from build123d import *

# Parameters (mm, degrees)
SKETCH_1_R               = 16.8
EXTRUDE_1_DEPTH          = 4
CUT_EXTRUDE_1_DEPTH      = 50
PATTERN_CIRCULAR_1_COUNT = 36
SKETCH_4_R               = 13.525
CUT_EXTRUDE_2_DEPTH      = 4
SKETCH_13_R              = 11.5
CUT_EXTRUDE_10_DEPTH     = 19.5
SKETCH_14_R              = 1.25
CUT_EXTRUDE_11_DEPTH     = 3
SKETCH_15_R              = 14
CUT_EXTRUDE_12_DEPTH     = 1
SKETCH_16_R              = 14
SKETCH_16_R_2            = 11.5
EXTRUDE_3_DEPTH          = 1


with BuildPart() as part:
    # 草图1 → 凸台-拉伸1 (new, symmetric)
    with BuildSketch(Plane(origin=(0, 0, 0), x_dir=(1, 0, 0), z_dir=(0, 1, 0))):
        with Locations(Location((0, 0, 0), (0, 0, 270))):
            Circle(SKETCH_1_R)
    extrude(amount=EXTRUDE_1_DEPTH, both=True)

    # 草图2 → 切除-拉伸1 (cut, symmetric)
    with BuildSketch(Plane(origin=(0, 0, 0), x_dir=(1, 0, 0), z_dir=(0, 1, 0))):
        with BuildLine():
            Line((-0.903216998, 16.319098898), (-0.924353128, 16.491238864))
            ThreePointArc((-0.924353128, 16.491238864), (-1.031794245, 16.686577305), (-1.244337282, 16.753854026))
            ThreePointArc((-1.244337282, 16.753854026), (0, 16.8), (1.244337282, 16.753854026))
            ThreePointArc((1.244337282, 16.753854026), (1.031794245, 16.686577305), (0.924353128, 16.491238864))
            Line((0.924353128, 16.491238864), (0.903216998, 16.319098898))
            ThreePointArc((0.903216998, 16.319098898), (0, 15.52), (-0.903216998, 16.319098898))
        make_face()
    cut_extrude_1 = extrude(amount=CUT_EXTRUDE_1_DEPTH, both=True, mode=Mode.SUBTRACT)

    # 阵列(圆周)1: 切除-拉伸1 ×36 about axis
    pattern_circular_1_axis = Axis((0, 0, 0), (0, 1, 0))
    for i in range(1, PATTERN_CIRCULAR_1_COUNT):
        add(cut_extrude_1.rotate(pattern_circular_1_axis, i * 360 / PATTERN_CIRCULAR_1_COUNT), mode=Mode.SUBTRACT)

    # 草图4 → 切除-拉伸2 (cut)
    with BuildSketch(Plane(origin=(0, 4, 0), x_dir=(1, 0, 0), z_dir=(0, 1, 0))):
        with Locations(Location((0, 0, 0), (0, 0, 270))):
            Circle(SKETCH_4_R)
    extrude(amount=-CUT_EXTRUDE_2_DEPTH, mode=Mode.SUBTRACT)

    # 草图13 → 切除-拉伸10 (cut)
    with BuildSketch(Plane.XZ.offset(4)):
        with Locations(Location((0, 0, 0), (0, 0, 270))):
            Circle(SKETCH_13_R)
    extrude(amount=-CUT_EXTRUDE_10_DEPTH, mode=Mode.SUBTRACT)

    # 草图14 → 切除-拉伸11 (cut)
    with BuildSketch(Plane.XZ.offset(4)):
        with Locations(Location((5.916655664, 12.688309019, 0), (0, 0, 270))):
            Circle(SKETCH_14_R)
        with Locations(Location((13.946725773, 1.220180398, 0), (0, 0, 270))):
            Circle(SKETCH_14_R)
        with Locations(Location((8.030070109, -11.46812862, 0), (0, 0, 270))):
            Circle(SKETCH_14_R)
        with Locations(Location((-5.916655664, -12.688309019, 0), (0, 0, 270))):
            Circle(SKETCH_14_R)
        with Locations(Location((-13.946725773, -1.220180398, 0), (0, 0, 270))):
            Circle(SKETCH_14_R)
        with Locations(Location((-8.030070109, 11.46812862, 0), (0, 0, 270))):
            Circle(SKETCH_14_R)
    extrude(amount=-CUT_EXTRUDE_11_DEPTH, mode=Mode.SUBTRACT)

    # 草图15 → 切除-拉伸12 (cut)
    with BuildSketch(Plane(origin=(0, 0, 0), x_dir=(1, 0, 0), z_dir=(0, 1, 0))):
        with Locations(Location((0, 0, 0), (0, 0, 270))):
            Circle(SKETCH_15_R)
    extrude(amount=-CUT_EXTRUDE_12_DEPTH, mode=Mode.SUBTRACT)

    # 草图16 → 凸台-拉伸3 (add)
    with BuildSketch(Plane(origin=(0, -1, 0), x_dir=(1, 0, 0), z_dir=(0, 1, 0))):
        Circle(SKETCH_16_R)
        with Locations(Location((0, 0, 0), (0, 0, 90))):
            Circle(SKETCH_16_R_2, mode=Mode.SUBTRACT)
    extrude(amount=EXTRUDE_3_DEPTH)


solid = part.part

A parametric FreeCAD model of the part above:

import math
import FreeCAD as App
import Part
import Sketcher
Q = App.Units.Quantity

doc = App.newDocument("Part")
body = doc.addObject("PartDesign::Body", "Body")

sketch1 = body.newObject("Sketcher::SketchObject", "Sketch")
sketch1.AttachmentSupport = (doc.getObject("XZ_Plane"), [""])
sketch1.MapMode = "FlatFace"
sketch1.addGeometry(Part.Circle(App.Vector(0, 0, 0), App.Vector(0, 0, 1), 17), False)
sketch1.addConstraint([
    Sketcher.Constraint("Coincident", 0, 3, -1, 1),
    Sketcher.Constraint("Diameter", 0, Q("33.6 mm")),
])
pad1 = body.newObject("PartDesign::Pad", "Pad")
pad1.Profile = sketch1
pad1.Length = 8
pad1.Midplane = True

sketch2 = body.newObject("Sketcher::SketchObject", "Sketch001")
sketch2.AttachmentSupport = (doc.getObject("XZ_Plane"), [""])
sketch2.MapMode = "FlatFace"
sketch2.addGeometry([
    Part.LineSegment(App.Vector(-0.92, -16.49, 0), App.Vector(-0.9, -16.32, 0)),
    Part.ArcOfCircle(Part.Circle(App.Vector(0, -16.43, 0), App.Vector(0, 0, 1), 0.91), math.radians(7), math.radians(173)),
    Part.LineSegment(App.Vector(0.9, -16.32, 0), App.Vector(0.92, -16.49, 0)),
    Part.ArcOfCircle(Part.Circle(App.Vector(1.22, -16.45, 0), App.Vector(0, 0, 1), 0.3), math.radians(-173), math.radians(-86)),
    Part.ArcOfCircle(Part.Circle(App.Vector(0, 0, 0), App.Vector(0, 0, 1), 16.8), math.radians(-94.25), math.radians(-85.75)),
    Part.ArcOfCircle(Part.Circle(App.Vector(-1.22, -16.45, 0), App.Vector(0, 0, 1), 0.3), math.radians(-94), math.radians(-7)),
], False)
sketch2.addConstraint([
    Sketcher.Constraint("Tangent", 0, 2, 1, 2),
    Sketcher.Constraint("Tangent", 1, 1, 2, 1),
    Sketcher.Constraint("Tangent", 2, 2, 3, 1),
    Sketcher.Constraint("Tangent", 3, 2, 4, 2),
    Sketcher.Constraint("Tangent", 4, 1, 5, 1),
    Sketcher.Constraint("Tangent", 5, 2, 0, 1),
    Sketcher.Constraint("Coincident", 4, 3, -1, 1),
    Sketcher.Constraint("Equal", 3, 5),
    Sketcher.Constraint("Symmetric", 0, 2, 1, 1, -2),
    Sketcher.Constraint("Radius", 3, Q("0.3 mm")),
    Sketcher.Constraint("Radius", 4, Q("16.8 mm")),
    Sketcher.Constraint("Angle", 0, Q("83 deg")),
    Sketcher.Constraint("Radius", 1, Q("0.91 mm")),
    Sketcher.Constraint("DistanceY", 1, 3, -1, 1, Q("16.43 mm")),
])
pocket1 = body.newObject("PartDesign::Pocket", "Pocket")
pocket1.Profile = sketch2
pocket1.Length = 100
pocket1.Midplane = True
doc.recompute()

polarpattern = body.newObject("PartDesign::PolarPattern", "PolarPattern")
polarpattern.Originals = [pocket1]
polarpattern.Axis = (doc.getObject("Y_Axis"), [""])
polarpattern.Angle = 360
polarpattern.Occurrences = 36
body.Tip = polarpattern

sketch3 = body.newObject("Sketcher::SketchObject", "Sketch002")
sketch3.AttachmentSupport = (doc.getObject("XZ_Plane"), [""])
sketch3.MapMode = "FlatFace"
sketch3.AttachmentOffset = App.Placement(App.Vector(0, 0, -4), App.Rotation())
sketch3.addGeometry(Part.Circle(App.Vector(0, 0, 0), App.Vector(0, 0, 1), 14), False)
sketch3.addConstraint([
    Sketcher.Constraint("Coincident", 0, 3, -1, 1),
    Sketcher.Constraint("Diameter", 0, Q("27.05 mm")),
])
pocket2 = body.newObject("PartDesign::Pocket", "Pocket001")
pocket2.Profile = sketch3
pocket2.Length = 4
pocket2.Reversed = True

sketch4 = body.newObject("Sketcher::SketchObject", "Sketch003")
sketch4.AttachmentSupport = (doc.getObject("XZ_Plane"), [""])
sketch4.MapMode = "FlatFace"
sketch4.AttachmentOffset = App.Placement(App.Vector(0, 0, 4), App.Rotation())
sketch4.addGeometry(Part.Circle(App.Vector(0, 0, 0), App.Vector(0, 0, 1), 12), False)
sketch4.addConstraint([
    Sketcher.Constraint("Coincident", 0, 3, -1, 1),
    Sketcher.Constraint("Diameter", 0, Q("23 mm")),
])
pocket3 = body.newObject("PartDesign::Pocket", "Pocket002")
pocket3.Profile = sketch4
pocket3.Length = 19.5

sketch5 = body.newObject("Sketcher::SketchObject", "Sketch004")
sketch5.AttachmentSupport = (doc.getObject("XZ_Plane"), [""])
sketch5.MapMode = "FlatFace"
sketch5.AttachmentOffset = App.Placement(App.Vector(0, 0, 4), App.Rotation())
sketch5.addGeometry([
    Part.Circle(App.Vector(5.9, 12.7, 0), App.Vector(0, 0, 1), 1.2),
    Part.Circle(App.Vector(13.9, 1.2, 0), App.Vector(0, 0, 1), 1.2),
    Part.Circle(App.Vector(8, -11.5, 0), App.Vector(0, 0, 1), 1.2),
    Part.Circle(App.Vector(-5.9, -12.7, 0), App.Vector(0, 0, 1), 1.2),
    Part.Circle(App.Vector(-13.9, -1.2, 0), App.Vector(0, 0, 1), 1.2),
    Part.Circle(App.Vector(-8, 11.5, 0), App.Vector(0, 0, 1), 1.2),
], False)
sketch5.addConstraint([
    Sketcher.Constraint("Equal", 0, 1),
    Sketcher.Constraint("Equal", 1, 2),
    Sketcher.Constraint("Equal", 2, 3),
    Sketcher.Constraint("Equal", 3, 4),
    Sketcher.Constraint("Equal", 4, 5),
    Sketcher.Constraint("Symmetric", 0, 3, 3, 3, -1, 1),
    Sketcher.Constraint("Symmetric", 1, 3, 4, 3, -1, 1),
    Sketcher.Constraint("Symmetric", 2, 3, 5, 3, -1, 1),
    Sketcher.Constraint("Diameter", 0, Q("2.5 mm")),
    Sketcher.Constraint("DistanceY", -1, 1, 0, 3, Q("12.688309 mm")),
    Sketcher.Constraint("DistanceY", -1, 1, 1, 3, Q("1.22018 mm")),
    Sketcher.Constraint("DistanceX", -1, 1, 2, 3, Q("8.03007 mm")),
    Sketcher.Constraint("DistanceY", 2, 3, -1, 1, Q("11.468129 mm")),
    Sketcher.Constraint("DistanceX", 0, 3, 1, 3, Q("8.03007 mm")),
    Sketcher.Constraint("DistanceX", 3, 3, 1, 3, Q("19.863381 mm")),
])
pocket4 = body.newObject("PartDesign::Pocket", "Pocket003")
pocket4.Profile = sketch5
pocket4.Length = 3

sketch6 = body.newObject("Sketcher::SketchObject", "Sketch005")
sketch6.AttachmentSupport = (doc.getObject("XZ_Plane"), [""])
sketch6.MapMode = "FlatFace"
sketch6.addGeometry(Part.Circle(App.Vector(0, 0, 0), App.Vector(0, 0, 1), 14), False)
sketch6.addConstraint([
    Sketcher.Constraint("Coincident", 0, 3, -1, 1),
    Sketcher.Constraint("Diameter", 0, Q("28 mm")),
])
pocket5 = body.newObject("PartDesign::Pocket", "Pocket004")
pocket5.Profile = sketch6
pocket5.Length = 1
pocket5.Reversed = True

sketch7 = body.newObject("Sketcher::SketchObject", "Sketch006")
sketch7.AttachmentSupport = (doc.getObject("XZ_Plane"), [""])
sketch7.MapMode = "FlatFace"
sketch7.AttachmentOffset = App.Placement(App.Vector(0, 0, 1), App.Rotation())
sketch7.addGeometry([
    Part.Circle(App.Vector(0, 0, 0), App.Vector(0, 0, 1), 14),
    Part.Circle(App.Vector(0, 0, 0), App.Vector(0, 0, 1), 12),
], False)
sketch7.addConstraint([
    Sketcher.Constraint("Coincident", 0, 3, -1, 1),
    Sketcher.Constraint("Coincident", 1, 3, -1, 1),
    Sketcher.Constraint("Diameter", 0, Q("28 mm")),
    Sketcher.Constraint("Diameter", 1, Q("23 mm")),
])
pad2 = body.newObject("PartDesign::Pad", "Pad001")
pad2.Profile = sketch7
pad2.Length = 1
pad2.Reversed = True

doc.recompute()
